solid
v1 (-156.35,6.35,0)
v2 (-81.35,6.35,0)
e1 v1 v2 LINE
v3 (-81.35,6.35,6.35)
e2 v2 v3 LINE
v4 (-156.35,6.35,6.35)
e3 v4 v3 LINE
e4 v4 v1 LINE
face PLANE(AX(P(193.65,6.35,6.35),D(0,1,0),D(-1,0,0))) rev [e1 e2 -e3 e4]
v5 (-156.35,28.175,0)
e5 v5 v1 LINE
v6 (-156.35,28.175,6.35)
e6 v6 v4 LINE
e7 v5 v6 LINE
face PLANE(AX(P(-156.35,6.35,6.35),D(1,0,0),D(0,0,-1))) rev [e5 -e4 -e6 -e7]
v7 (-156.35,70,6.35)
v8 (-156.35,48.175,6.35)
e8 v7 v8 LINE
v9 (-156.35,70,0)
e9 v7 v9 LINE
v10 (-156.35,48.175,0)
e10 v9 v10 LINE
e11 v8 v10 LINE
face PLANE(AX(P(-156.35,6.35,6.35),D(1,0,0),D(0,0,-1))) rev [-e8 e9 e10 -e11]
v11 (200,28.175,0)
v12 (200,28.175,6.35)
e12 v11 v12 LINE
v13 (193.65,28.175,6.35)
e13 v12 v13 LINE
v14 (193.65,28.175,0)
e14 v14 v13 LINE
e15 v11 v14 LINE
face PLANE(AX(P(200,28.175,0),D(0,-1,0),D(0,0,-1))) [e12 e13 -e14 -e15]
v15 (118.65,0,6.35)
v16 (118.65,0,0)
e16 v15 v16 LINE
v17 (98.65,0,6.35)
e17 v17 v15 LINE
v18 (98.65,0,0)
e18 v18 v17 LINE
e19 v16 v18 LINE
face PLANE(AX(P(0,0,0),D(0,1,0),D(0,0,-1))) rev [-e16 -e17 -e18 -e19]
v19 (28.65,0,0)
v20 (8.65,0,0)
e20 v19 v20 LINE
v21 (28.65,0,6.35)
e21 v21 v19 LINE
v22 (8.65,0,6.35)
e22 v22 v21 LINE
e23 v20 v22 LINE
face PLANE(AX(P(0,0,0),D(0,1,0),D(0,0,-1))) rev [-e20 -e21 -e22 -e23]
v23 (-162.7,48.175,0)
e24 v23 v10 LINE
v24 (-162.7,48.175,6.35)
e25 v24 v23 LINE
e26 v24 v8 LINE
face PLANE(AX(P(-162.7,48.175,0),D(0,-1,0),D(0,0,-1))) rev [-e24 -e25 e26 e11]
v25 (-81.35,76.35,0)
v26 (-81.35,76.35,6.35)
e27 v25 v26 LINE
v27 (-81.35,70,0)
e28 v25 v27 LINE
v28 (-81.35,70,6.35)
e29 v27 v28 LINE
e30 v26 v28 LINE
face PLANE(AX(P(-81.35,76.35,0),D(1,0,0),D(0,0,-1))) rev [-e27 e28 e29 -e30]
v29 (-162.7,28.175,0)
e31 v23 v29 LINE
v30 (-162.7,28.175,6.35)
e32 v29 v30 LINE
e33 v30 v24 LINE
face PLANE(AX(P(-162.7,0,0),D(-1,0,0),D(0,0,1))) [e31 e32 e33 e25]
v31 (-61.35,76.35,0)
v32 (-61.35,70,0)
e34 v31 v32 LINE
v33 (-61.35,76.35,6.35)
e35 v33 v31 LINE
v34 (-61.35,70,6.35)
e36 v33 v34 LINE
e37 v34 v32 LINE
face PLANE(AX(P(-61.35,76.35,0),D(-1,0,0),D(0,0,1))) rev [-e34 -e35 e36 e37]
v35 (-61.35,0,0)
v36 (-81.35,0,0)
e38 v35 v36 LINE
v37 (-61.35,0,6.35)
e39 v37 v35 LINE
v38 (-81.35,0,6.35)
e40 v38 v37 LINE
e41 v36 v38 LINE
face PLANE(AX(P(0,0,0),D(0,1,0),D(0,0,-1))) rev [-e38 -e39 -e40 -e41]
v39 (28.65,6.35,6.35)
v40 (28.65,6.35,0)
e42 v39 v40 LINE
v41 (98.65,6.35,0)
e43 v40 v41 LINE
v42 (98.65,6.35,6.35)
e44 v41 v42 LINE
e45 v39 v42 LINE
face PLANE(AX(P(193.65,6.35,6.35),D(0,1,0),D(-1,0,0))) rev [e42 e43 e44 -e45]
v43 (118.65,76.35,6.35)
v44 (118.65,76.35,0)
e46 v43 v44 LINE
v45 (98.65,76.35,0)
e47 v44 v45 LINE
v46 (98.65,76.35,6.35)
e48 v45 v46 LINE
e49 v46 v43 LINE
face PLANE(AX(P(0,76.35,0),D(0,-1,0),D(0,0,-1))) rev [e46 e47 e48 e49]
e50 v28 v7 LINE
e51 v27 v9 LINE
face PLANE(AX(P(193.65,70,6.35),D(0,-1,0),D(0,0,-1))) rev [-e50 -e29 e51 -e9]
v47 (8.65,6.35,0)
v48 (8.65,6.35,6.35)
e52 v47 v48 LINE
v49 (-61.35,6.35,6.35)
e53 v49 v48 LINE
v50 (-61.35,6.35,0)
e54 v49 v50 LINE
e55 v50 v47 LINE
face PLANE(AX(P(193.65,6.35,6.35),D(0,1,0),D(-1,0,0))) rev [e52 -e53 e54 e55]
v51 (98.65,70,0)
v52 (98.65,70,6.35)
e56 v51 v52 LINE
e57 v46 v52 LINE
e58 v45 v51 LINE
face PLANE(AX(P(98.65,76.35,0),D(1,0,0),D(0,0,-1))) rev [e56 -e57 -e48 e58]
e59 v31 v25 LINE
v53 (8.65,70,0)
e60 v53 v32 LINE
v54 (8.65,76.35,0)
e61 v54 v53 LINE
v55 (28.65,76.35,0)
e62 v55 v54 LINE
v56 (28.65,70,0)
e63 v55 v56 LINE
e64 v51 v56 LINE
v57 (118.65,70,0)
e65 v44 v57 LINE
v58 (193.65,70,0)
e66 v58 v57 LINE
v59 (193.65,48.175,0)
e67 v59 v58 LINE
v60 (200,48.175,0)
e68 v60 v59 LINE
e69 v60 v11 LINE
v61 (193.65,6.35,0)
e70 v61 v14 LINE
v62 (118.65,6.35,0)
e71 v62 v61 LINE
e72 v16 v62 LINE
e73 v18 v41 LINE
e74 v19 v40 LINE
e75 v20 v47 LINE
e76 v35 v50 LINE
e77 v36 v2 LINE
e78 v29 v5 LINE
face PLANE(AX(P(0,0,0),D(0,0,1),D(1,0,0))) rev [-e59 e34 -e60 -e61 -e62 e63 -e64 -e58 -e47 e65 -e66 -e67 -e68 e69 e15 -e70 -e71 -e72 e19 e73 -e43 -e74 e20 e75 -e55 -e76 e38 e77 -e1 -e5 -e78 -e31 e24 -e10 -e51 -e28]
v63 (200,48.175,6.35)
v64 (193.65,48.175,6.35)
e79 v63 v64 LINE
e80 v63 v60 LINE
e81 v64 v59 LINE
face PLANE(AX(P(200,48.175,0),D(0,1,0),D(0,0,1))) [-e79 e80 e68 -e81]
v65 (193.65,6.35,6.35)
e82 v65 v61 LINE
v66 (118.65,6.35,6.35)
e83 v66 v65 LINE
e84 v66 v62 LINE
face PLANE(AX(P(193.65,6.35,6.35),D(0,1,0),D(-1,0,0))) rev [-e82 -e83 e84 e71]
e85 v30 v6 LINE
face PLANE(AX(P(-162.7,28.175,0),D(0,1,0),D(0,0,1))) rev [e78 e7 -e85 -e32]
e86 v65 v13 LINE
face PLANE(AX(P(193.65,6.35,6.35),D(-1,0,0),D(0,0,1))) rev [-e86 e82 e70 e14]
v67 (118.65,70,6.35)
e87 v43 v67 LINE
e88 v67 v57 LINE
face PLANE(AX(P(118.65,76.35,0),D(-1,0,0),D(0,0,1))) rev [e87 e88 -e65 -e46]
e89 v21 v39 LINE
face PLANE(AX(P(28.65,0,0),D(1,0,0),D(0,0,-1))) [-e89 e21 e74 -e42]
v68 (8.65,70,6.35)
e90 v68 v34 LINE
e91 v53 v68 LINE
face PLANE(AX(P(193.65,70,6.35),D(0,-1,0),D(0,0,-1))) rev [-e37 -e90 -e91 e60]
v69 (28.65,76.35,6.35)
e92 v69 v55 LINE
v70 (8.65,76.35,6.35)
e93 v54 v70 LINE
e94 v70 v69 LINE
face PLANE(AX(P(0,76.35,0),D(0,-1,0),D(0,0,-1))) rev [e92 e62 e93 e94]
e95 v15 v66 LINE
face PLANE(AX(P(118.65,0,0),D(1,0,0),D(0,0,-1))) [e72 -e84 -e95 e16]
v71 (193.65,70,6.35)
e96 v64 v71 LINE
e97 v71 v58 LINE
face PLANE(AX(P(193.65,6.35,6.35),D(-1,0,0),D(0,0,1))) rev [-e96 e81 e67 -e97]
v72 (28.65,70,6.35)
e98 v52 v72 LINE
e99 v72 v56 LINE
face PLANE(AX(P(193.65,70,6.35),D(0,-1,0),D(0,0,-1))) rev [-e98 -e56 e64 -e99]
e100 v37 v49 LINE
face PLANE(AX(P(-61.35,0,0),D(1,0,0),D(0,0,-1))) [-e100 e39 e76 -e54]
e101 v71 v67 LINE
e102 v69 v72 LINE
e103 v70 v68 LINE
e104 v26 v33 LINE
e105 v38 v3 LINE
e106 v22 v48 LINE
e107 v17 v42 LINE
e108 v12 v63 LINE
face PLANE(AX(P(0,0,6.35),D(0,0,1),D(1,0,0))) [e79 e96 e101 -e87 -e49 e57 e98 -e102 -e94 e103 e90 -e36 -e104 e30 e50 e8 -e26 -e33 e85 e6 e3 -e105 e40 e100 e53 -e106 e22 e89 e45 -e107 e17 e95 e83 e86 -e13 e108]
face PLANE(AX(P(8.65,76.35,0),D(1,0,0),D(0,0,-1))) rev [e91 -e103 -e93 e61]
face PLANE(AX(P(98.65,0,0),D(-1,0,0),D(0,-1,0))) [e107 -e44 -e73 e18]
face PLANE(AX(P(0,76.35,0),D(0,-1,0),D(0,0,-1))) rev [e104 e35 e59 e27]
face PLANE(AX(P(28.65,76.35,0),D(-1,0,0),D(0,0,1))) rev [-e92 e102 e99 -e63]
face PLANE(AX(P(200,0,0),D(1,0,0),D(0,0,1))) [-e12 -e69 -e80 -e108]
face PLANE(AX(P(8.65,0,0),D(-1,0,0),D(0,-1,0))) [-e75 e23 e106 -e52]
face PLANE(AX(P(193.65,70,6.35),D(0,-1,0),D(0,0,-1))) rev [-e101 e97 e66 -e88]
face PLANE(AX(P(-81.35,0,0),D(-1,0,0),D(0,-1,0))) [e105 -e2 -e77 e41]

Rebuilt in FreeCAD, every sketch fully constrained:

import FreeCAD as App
import Part
import Sketcher


def add_polygon(sketch, points):
    """Adds a closed chain of lines whose ends are joined by coincident constraints."""
    first, n = sketch.GeometryCount, len(points)
    for a, b in zip(points, points[1:] + points[:1]):
        sketch.addGeometry(Part.LineSegment(App.Vector(*a, 0), App.Vector(*b, 0)), False)
    for i in range(n):
        sketch.addConstraint(Sketcher.Constraint("Coincident", first + i, 2, first + (i + 1) % n, 1))

doc = App.newDocument("Part")
params = doc.addObject("Spreadsheet::Sheet", "Params")
for row, (alias, value) in enumerate([
    ("sketch1_width", "350 mm"),
    ("sketch1_height", "63.65 mm"),
    ("pad1_length", "6.35 mm"),
    ("sketch2_width", "20 mm"),
    ("sketch2_height", "6.35 mm"),
    ("pad2_length", "6.35 mm"),
    ("sketch3_width", "20 mm"),
    ("sketch3_height", "6.35 mm"),
    ("pad3_length", "6.35 mm"),
], start=1):
    params.set(f"A{row}", alias)
    params.set(f"B{row}", "=" + value)
    params.setAlias(f"B{row}", alias)

body = doc.addObject("PartDesign::Body", "Body")

# Sketch on XY plane
sketch1 = body.newObject("Sketcher::SketchObject", "Sketch")
sketch1.AttachmentSupport = (doc.getObject("XY_Plane"), [""])
sketch1.MapMode = "FlatFace"
add_polygon(sketch1, [(194, 6), (194, 70), (-156, 70), (-156, 6)])  # lines 0-3
sketch1.addConstraint(Sketcher.Constraint("Vertical", 0))
sketch1.addConstraint(Sketcher.Constraint("Horizontal", 1))
sketch1.addConstraint(Sketcher.Constraint("Vertical", 2))
sketch1.addConstraint(Sketcher.Constraint("Horizontal", 3))
sketch1.addConstraint(Sketcher.Constraint("DistanceX", 1, 2, 1, 1, 350.0))
sketch1.addConstraint(Sketcher.Constraint("DistanceY", -1, 1, 0, 2, 70.0))
sketch1.addConstraint(Sketcher.Constraint("DistanceY", 0, 1, 0, 2, 63.65))
sketch1.addConstraint(Sketcher.Constraint("DistanceX", -1, 1, 0, 2, 193.65))
sketch1.setExpression("Constraints[8]", "Params.sketch1_width")
sketch1.setExpression("Constraints[10]", "Params.sketch1_height")
pad1 = body.newObject("PartDesign::Pad", "Pad")
pad1.Profile = sketch1
pad1.setExpression("Length", "Params.pad1_length")

# Sketch on YZ plane
sketch2 = body.newObject("Sketcher::SketchObject", "Sketch001")
sketch2.AttachmentSupport = (doc.getObject("YZ_Plane"), [""])
sketch2.MapMode = "FlatFace"
sketch2.AttachmentOffset = App.Placement(App.Vector(0, 0, -156.35), App.Rotation())
add_polygon(sketch2, [(48, 0), (28, 0), (28, 6), (48, 6)])  # lines 0-3
sketch2.addConstraint(Sketcher.Constraint("Horizontal", 0))
sketch2.addConstraint(Sketcher.Constraint("Vertical", 1))
sketch2.addConstraint(Sketcher.Constraint("Horizontal", 2))
sketch2.addConstraint(Sketcher.Constraint("Vertical", 3))
sketch2.addConstraint(Sketcher.Constraint("PointOnObject", 0, 2, -1))
sketch2.addConstraint(Sketcher.Constraint("DistanceX", 0, 2, 0, 1, 20.0))
sketch2.addConstraint(Sketcher.Constraint("DistanceY", 1, 1, 1, 2, 6.35))
sketch2.addConstraint(Sketcher.Constraint("DistanceX", -1, 1, 0, 2, 28.175))
sketch2.setExpression("Constraints[9]", "Params.sketch2_width")
sketch2.setExpression("Constraints[10]", "Params.sketch2_height")
pad2 = body.newObject("PartDesign::Pad", "Pad001")
pad2.Profile = sketch2
pad2.setExpression("Length", "Params.pad2_length")
pad2.Reversed = True
doc.recompute()

datumplane = body.newObject("PartDesign::Plane", "DatumPlane")
datumplane.AttachmentSupport = (doc.getObject("YZ_Plane"), [""])
datumplane.MapMode = "FlatFace"
datumplane.AttachmentOffset = App.Placement(App.Vector(0, 0, 18.65), App.Rotation())
mirrored = body.newObject("PartDesign::Mirrored", "Mirrored")
mirrored.Originals = [pad2]
mirrored.MirrorPlane = (datumplane, [""])
body.Tip = mirrored

# Sketch on XZ plane
sketch3 = body.newObject("Sketcher::SketchObject", "Sketch002")
sketch3.AttachmentSupport = (doc.getObject("XZ_Plane"), [""])
sketch3.MapMode = "FlatFace"
sketch3.AttachmentOffset = App.Placement(App.Vector(0, 0, -70), App.Rotation())
add_polygon(sketch3, [(9, 0), (9, 6), (29, 6), (29, 0)])  # lines 0-3
add_polygon(sketch3, [(99, 0), (99, 6), (119, 6), (119, 0)])  # lines 4-7
add_polygon(sketch3, [(-81, 0), (-81, 6), (-61, 6), (-61, 0)])  # lines 8-11
sketch3.addConstraint(Sketcher.Constraint("Vertical", 0))
sketch3.addConstraint(Sketcher.Constraint("Horizontal", 1))
sketch3.addConstraint(Sketcher.Constraint("Vertical", 2))
sketch3.addConstraint(Sketcher.Constraint("Horizontal", 3))
sketch3.addConstraint(Sketcher.Constraint("Vertical", 4))
sketch3.addConstraint(Sketcher.Constraint("Horizontal", 5))
sketch3.addConstraint(Sketcher.Constraint("Vertical", 6))
sketch3.addConstraint(Sketcher.Constraint("Horizontal", 7))
sketch3.addConstraint(Sketcher.Constraint("Vertical", 8))
sketch3.addConstraint(Sketcher.Constraint("Horizontal", 9))
sketch3.addConstraint(Sketcher.Constraint("Vertical", 10))
sketch3.addConstraint(Sketcher.Constraint("Horizontal", 11))
sketch3.addConstraint(Sketcher.Constraint("PointOnObject", 2, 2, -1))
sketch3.addConstraint(Sketcher.Constraint("PointOnObject", 6, 2, -1))
sketch3.addConstraint(Sketcher.Constraint("PointOnObject", 10, 2, -1))
sketch3.addConstraint(Sketcher.Constraint("Horizontal", 1, 2, 4, 2))
sketch3.addConstraint(Sketcher.Constraint("Horizontal", 5, 2, 8, 2))
sketch3.addConstraint(Sketcher.Constraint("Equal", 3, 5))
sketch3.addConstraint(Sketcher.Constraint("Equal", 7, 9))
sketch3.addConstraint(Sketcher.Constraint("DistanceX", 1, 1, 1, 2, 20.0))
sketch3.addConstraint(Sketcher.Constraint("DistanceX", 1, 2, 4, 2, 70.0))
sketch3.addConstraint(Sketcher.Constraint("DistanceX", 8, 2, 0, 2, 90.0))
sketch3.addConstraint(Sketcher.Constraint("DistanceY", 0, 1, 0, 2, 6.35))
sketch3.addConstraint(Sketcher.Constraint("DistanceX", -1, 1, 0, 2, 8.65))
sketch3.setExpression("Constraints[31]", "Params.sketch3_width")
sketch3.setExpression("Constraints[34]", "Params.sketch3_height")
pad3 = body.newObject("PartDesign::Pad", "Pad002")
pad3.Profile = sketch3
pad3.setExpression("Length", "Params.pad3_length")
pad3.Reversed = True
doc.recompute()

datumplane2 = body.newObject("PartDesign::Plane", "DatumPlane001")
datumplane2.AttachmentSupport = (doc.getObject("XZ_Plane"), [""])
datumplane2.MapMode = "FlatFace"
datumplane2.AttachmentOffset = App.Placement(App.Vector(0, 0, -38.175), App.Rotation())
mirrored2 = body.newObject("PartDesign::Mirrored", "Mirrored001")
mirrored2.Originals = [pad3]
mirrored2.MirrorPlane = (datumplane2, [""])
body.Tip = mirrored2

doc.recompute()
